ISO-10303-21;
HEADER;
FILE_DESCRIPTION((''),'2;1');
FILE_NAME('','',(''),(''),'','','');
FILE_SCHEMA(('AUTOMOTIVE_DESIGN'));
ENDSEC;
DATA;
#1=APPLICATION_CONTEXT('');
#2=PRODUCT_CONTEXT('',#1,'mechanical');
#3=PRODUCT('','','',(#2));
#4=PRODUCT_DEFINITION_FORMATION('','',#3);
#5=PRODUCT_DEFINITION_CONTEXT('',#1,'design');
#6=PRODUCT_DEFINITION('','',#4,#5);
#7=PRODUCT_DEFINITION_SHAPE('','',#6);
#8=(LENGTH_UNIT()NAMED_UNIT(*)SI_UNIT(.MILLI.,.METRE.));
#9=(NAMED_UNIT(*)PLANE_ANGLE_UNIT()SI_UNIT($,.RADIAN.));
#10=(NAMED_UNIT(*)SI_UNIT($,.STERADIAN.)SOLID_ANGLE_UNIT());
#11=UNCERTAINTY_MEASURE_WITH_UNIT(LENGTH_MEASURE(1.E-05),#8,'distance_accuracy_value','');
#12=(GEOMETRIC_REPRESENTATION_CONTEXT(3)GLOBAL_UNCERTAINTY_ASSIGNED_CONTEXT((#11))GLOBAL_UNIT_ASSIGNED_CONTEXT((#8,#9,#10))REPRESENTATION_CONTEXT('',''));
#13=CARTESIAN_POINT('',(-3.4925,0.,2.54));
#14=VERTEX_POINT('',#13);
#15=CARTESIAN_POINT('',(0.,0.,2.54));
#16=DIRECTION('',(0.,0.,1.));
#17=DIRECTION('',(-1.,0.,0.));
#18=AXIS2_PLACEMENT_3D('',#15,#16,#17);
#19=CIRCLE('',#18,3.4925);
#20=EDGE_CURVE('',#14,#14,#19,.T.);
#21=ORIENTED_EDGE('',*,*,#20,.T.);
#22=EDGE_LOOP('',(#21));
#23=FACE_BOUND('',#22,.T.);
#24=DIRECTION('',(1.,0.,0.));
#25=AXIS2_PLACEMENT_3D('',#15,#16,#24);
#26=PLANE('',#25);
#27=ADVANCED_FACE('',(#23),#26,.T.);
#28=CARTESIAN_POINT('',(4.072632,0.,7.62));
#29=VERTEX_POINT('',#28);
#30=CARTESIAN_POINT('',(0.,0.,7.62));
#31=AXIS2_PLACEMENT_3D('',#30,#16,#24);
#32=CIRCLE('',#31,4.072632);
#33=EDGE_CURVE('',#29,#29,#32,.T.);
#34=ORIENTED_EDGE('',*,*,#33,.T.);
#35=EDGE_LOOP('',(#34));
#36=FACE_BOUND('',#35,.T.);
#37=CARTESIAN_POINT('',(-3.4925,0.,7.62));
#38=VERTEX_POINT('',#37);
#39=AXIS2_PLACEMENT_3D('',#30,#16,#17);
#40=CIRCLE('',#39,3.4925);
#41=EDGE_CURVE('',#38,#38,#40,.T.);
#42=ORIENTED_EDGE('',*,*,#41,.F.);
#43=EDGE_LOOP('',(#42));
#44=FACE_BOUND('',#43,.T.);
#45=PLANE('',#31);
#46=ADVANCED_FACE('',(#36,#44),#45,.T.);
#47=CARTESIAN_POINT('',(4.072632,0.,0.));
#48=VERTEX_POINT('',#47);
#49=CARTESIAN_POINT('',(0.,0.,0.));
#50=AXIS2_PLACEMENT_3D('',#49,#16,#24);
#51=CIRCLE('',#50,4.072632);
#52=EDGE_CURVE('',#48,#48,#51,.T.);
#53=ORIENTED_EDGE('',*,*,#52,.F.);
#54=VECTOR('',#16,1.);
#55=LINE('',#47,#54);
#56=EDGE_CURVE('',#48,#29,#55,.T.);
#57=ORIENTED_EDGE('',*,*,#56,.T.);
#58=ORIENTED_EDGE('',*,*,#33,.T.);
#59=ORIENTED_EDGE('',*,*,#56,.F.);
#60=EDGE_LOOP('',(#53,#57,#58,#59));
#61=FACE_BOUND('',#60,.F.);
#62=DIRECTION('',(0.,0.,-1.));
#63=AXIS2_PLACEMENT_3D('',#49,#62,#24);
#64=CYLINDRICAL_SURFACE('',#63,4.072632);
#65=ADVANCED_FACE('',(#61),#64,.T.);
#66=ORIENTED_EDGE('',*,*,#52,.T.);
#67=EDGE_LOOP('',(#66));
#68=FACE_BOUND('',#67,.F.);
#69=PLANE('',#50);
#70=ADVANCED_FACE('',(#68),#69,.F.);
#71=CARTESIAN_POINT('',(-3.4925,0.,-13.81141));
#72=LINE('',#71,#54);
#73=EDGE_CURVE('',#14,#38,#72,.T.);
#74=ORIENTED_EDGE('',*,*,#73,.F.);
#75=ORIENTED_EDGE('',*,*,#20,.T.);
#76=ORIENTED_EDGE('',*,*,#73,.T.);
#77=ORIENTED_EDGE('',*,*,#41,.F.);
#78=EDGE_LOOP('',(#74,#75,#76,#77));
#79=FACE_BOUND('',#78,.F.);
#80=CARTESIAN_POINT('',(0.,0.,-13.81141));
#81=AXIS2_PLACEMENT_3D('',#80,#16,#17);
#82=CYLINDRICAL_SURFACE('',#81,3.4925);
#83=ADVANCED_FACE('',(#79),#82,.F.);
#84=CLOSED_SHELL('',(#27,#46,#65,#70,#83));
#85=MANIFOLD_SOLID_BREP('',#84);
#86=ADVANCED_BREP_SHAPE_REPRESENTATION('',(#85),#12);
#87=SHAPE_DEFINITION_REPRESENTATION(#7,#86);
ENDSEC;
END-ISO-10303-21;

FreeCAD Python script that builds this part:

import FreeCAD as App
import Part
import Sketcher
from FreeCAD import Vector
Q = App.Units.Quantity

doc = App.newDocument("Part")
body = doc.addObject("PartDesign::Body", "Body")

# Sketch on XY plane
sketch1 = body.newObject("Sketcher::SketchObject", "Sketch")
sketch1.AttachmentSupport = (doc.getObject("XY_Plane"), [""])
sketch1.MapMode = "FlatFace"
sketch1.addGeometry(Part.Circle(Vector(0, 0, 0), Vector(0, 0, 1), 4.1), False)
sketch1.addConstraint([
    Sketcher.Constraint("Coincident", 0, 3, -1, 1),
    Sketcher.Constraint("Diameter", 0, Q("8.145264 mm")),
])
pad1 = body.newObject("PartDesign::Pad", "Pad")
pad1.Profile = sketch1
pad1.Length = Q("0.3 in")

# Sketch on XY plane
sketch2 = body.newObject("Sketcher::SketchObject", "Sketch001")
sketch2.AttachmentSupport = (doc.getObject("XY_Plane"), [""])
sketch2.MapMode = "FlatFace"
sketch2.addGeometry(Part.Circle(Vector(0, 0, 0), Vector(0, 0, 1), 3.5), False)
sketch2.addConstraint([
    Sketcher.Constraint("Coincident", 0, 3, -1, 1),
    Sketcher.Constraint("Diameter", 0, Q("0.275 in")),
])
doc.recompute()
hole = body.newObject("PartDesign::Hole", "Hole")
hole.Profile = sketch2
hole.ThreadType = "None"
hole.Diameter = Q("0.275 in")
hole.DepthType = "ThroughAll"
hole.Reversed = True

# Sketch on XY plane
sketch3 = body.newObject("Sketcher::SketchObject", "Sketch002")
sketch3.AttachmentSupport = (doc.getObject("XY_Plane"), [""])
sketch3.MapMode = "FlatFace"
sketch3.addGeometry(Part.Circle(Vector(0, 0, 0), Vector(0, 0, 1), 4), False)
sketch3.addConstraint([
    Sketcher.Constraint("Coincident", 0, 3, -1, 1),
    Sketcher.Constraint("Diameter", 0, Q("8.02771 mm")),
])
pad2 = body.newObject("PartDesign::Pad", "Pad001")
pad2.Profile = sketch3
pad2.Length = Q("0.1 in")

doc.recompute()
